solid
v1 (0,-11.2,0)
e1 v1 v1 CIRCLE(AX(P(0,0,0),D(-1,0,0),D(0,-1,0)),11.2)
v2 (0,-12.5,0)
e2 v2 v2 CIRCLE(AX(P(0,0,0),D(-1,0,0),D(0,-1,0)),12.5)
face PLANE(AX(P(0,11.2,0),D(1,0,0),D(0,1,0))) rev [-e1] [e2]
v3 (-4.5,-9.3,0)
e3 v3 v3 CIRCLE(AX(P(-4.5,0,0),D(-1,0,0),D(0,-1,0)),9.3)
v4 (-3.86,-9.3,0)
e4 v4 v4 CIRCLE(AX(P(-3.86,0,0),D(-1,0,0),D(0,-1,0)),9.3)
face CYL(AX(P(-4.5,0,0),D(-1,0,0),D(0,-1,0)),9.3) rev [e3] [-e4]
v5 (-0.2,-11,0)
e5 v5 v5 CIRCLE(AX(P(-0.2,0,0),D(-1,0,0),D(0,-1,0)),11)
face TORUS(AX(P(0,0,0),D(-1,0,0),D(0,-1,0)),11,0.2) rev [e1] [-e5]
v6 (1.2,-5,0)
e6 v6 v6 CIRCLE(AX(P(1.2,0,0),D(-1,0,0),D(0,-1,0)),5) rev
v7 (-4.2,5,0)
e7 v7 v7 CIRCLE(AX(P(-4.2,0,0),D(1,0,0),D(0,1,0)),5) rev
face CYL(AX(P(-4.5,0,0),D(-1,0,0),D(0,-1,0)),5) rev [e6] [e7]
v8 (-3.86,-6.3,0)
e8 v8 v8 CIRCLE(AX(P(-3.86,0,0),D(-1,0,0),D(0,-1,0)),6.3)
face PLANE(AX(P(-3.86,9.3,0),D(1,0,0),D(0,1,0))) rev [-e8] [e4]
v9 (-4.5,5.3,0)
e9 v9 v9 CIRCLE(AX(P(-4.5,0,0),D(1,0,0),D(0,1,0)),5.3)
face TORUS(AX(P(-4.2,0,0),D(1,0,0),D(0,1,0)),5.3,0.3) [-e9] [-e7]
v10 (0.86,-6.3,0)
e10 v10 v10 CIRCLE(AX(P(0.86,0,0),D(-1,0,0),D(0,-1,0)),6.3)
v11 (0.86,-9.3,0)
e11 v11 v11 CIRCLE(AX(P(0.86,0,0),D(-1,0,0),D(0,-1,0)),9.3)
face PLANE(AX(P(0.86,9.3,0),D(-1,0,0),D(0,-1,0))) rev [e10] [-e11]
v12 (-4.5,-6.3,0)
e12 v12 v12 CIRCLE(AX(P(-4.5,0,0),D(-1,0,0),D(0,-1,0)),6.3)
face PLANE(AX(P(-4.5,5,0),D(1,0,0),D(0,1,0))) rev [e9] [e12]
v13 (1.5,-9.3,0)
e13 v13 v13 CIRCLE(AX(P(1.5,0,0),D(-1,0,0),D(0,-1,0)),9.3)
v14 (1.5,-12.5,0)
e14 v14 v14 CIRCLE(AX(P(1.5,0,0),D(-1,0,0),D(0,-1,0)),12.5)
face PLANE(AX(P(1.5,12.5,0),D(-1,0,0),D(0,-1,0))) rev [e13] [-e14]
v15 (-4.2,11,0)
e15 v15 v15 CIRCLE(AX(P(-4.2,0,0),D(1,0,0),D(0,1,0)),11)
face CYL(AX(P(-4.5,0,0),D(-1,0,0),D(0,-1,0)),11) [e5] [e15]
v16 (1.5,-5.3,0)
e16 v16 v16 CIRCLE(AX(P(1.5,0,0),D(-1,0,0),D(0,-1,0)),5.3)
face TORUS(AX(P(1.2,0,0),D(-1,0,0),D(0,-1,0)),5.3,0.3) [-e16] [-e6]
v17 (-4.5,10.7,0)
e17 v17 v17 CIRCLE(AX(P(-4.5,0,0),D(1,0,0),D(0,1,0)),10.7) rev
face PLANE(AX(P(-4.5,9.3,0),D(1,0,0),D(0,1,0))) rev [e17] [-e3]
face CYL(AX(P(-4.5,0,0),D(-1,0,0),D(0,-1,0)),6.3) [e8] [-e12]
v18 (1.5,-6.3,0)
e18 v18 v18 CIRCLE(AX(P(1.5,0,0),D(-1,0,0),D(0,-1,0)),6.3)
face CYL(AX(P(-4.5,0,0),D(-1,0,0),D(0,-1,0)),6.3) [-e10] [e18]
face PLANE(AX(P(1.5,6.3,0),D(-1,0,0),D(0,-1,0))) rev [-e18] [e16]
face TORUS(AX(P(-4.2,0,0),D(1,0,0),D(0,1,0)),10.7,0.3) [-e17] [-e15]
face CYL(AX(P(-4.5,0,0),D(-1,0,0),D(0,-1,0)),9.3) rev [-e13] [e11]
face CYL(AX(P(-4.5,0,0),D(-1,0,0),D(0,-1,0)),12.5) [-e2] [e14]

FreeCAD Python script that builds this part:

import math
import FreeCAD as App
import Part
import Sketcher


def edges_at(feature, points):
    """Names of the edges that pass closest to the given points."""
    edges = feature.Shape.Edges
    near = lambda p: min(range(len(edges)), key=lambda i: edges[i].distToShape(Part.Vertex(*p))[0])
    return sorted({f"Edge{near(p) + 1}" for p in points})

doc = App.newDocument("Part")
body = doc.addObject("PartDesign::Body", "Body")

# Sketch on XY plane
sketch1 = doc.addObject("Sketcher::SketchObject", "Sketch")
body.addObject(sketch1)
sketch1.AttachmentSupport = (doc.XY_Plane, [""])
sketch1.MapMode = "FlatFace"
sketch1.addGeometry([
    Part.LineSegment(App.Vector(0, 12.5, 0), App.Vector(0, 11.2, 0)),  # 0
    Part.ArcOfCircle(Part.Circle(App.Vector(0, 11, 0), App.Vector(0, 0, 1), 0.2), math.radians(180), math.radians(450)),  # 1
    Part.LineSegment(App.Vector(-0.2, 11, 0), App.Vector(-4.5, 11, 0)),  # 2
    Part.LineSegment(App.Vector(-4.5, 11, 0), App.Vector(-4.5, 9.3, 0)),  # 3
    Part.LineSegment(App.Vector(-4.5, 9.3, 0), App.Vector(-3.86, 9.3, 0)),  # 4
    Part.LineSegment(App.Vector(-3.86, 9.3, 0), App.Vector(-3.86, 6.3, 0)),  # 5
    Part.LineSegment(App.Vector(-3.86, 6.3, 0), App.Vector(-4.5, 6.3, 0)),  # 6
    Part.LineSegment(App.Vector(-4.5, 6.3, 0), App.Vector(-4.5, 5, 0)),  # 7
    Part.LineSegment(App.Vector(-4.5, 5, 0), App.Vector(1.5, 5, 0)),  # 8
    Part.LineSegment(App.Vector(1.5, 5, 0), App.Vector(1.5, 6.3, 0)),  # 9
    Part.LineSegment(App.Vector(1.5, 6.3, 0), App.Vector(0.86, 6.3, 0)),  # 10
    Part.LineSegment(App.Vector(0.86, 6.3, 0), App.Vector(0.86, 9.3, 0)),  # 11
    Part.LineSegment(App.Vector(0.86, 9.3, 0), App.Vector(1.5, 9.3, 0)),  # 12
    Part.LineSegment(App.Vector(1.5, 9.3, 0), App.Vector(1.5, 12.5, 0)),  # 13
    Part.LineSegment(App.Vector(1.5, 12.5, 0), App.Vector(0, 12.5, 0)),  # 14
], False)
sketch1.addConstraint([
    Sketcher.Constraint("Coincident", 0, 2, 1, 2),
    Sketcher.Constraint("Coincident", 1, 1, 2, 1),
    Sketcher.Constraint("Coincident", 2, 2, 3, 1),
    Sketcher.Constraint("Coincident", 3, 2, 4, 1),
    Sketcher.Constraint("Coincident", 4, 2, 5, 1),
    Sketcher.Constraint("Coincident", 5, 2, 6, 1),
    Sketcher.Constraint("Coincident", 6, 2, 7, 1),
    Sketcher.Constraint("Coincident", 7, 2, 8, 1),
    Sketcher.Constraint("Coincident", 8, 2, 9, 1),
    Sketcher.Constraint("Coincident", 9, 2, 10, 1),
    Sketcher.Constraint("Coincident", 10, 2, 11, 1),
    Sketcher.Constraint("Coincident", 11, 2, 12, 1),
    Sketcher.Constraint("Coincident", 12, 2, 13, 1),
    Sketcher.Constraint("Coincident", 13, 2, 14, 1),
    Sketcher.Constraint("Coincident", 14, 2, 0, 1),
    Sketcher.Constraint("Vertical", 0),
    Sketcher.Constraint("Horizontal", 2),
    Sketcher.Constraint("Vertical", 3),
    Sketcher.Constraint("Horizontal", 4),
    Sketcher.Constraint("Vertical", 5),
    Sketcher.Constraint("Horizontal", 6),
    Sketcher.Constraint("Vertical", 7),
    Sketcher.Constraint("Horizontal", 8),
    Sketcher.Constraint("Vertical", 9),
    Sketcher.Constraint("Horizontal", 10),
    Sketcher.Constraint("Vertical", 11),
    Sketcher.Constraint("Horizontal", 12),
    Sketcher.Constraint("Vertical", 13),
    Sketcher.Constraint("Horizontal", 14),
    Sketcher.Constraint("PointOnObject", 1, 3, -2),
    Sketcher.Constraint("PointOnObject", 0, 2, -2),
    Sketcher.Constraint("Horizontal", 6, 2, 9, 2),
    Sketcher.Constraint("Horizontal", 4, 2, 11, 2),
    Sketcher.Constraint("Vertical", 3, 2, 6, 2),
    Sketcher.Constraint("Vertical", 9, 2, 12, 2),
    Sketcher.Constraint("Equal", 6, 10),
    Sketcher.Constraint("Equal", 0, 7),
    Sketcher.Constraint("Radius", 1, 0.2),
    Sketcher.Constraint("DistanceX", 8, 1, 8, 2, 6.0),
    Sketcher.Constraint("DistanceY", 5, 2, 5, 1, 3.0),
    Sketcher.Constraint("DistanceX", 2, 2, 2, 1, 4.3),
    Sketcher.Constraint("DistanceY", 0, 2, 0, 1, 1.3),
    Sketcher.Constraint("DistanceY", 3, 2, 3, 1, 1.7),
    Sketcher.Constraint("DistanceY", 13, 1, 13, 2, 3.2),
    Sketcher.Constraint("DistanceY", -1, 1, 1, 3, 11.0),
    Sketcher.Constraint("DistanceX", 4, 1, 4, 2, 0.64),
])
revolution = doc.addObject("PartDesign::Revolution", "Revolution")
body.addObject(revolution)
revolution.Profile = sketch1
revolution.ReferenceAxis = (sketch1, ["H_Axis"])
revolution.Angle = 360
doc.recompute()

fillet = doc.addObject("PartDesign::Fillet", "Fillet")
body.addObject(fillet)
fillet.Base = (revolution, edges_at(revolution, [(1.5, 5, 0), (-4.5, 5, 0), (-4.5, 11, 0)]))
fillet.Radius = 0.3

doc.recompute()
